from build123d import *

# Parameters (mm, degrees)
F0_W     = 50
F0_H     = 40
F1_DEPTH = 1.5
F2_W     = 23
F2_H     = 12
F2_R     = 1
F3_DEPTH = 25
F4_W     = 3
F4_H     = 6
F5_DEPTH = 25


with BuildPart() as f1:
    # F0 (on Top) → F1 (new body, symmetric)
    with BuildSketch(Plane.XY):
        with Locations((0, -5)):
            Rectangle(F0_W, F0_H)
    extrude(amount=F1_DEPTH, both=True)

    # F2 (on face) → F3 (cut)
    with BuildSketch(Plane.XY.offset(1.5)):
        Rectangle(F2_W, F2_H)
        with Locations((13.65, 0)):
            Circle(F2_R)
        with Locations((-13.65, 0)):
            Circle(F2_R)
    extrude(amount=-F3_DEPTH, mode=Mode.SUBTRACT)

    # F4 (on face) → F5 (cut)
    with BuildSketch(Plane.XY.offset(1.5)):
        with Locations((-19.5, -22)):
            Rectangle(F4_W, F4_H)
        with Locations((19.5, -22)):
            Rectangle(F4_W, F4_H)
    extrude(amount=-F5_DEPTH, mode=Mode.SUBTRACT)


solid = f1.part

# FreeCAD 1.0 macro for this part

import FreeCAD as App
import Part
import Sketcher
Q = App.Units.Quantity


def add_polygon(sketch, points):
    """Adds a closed chain of lines whose ends are joined by coincident constraints."""
    first, n = sketch.GeometryCount, len(points)
    for a, b in zip(points, points[1:] + points[:1]):
        sketch.addGeometry(Part.LineSegment(App.Vector(*a, 0), App.Vector(*b, 0)), False)
    for i in range(n):
        sketch.addConstraint(Sketcher.Constraint("Coincident", first + i, 2, first + (i + 1) % n, 1))

doc = App.newDocument("Part")
params = doc.addObject("Spreadsheet::Sheet", "Params")
for row, (alias, value) in enumerate([
    ("sketch1_width", "50 mm"),
    ("sketch1_height", "40 mm"),
    ("pad1_length", "3 mm"),
    ("sketch2_diameter", "2 mm"),
    ("sketch2_width", "23 mm"),
    ("sketch2_height", "12 mm"),
    ("pocket1_length", "25 mm"),
    ("sketch3_width", "3 mm"),
    ("sketch3_height", "6 mm"),
    ("pocket2_length", "25 mm"),
], start=1):
    params.set(f"A{row}", alias)
    params.set(f"B{row}", "=" + value)
    params.setAlias(f"B{row}", alias)

body = doc.addObject("PartDesign::Body", "Body")

# Sketch on XY plane
sketch1 = body.newObject("Sketcher::SketchObject", "Sketch")
sketch1.AttachmentSupport = (doc.getObject("XY_Plane"), [""])
sketch1.MapMode = "FlatFace"
add_polygon(sketch1, [(-25, 15), (-25, -25), (25, -25), (25, 15)])  # lines 0-3
sketch1.addConstraint(Sketcher.Constraint("Vertical", 0))
sketch1.addConstraint(Sketcher.Constraint("Horizontal", 1))
sketch1.addConstraint(Sketcher.Constraint("Vertical", 2))
sketch1.addConstraint(Sketcher.Constraint("Horizontal", 3))
sketch1.addConstraint(Sketcher.Constraint("DistanceX", 1, 1, 1, 2, Q("50 mm")))
sketch1.addConstraint(Sketcher.Constraint("DistanceY", 0, 2, 0, 1, Q("40 mm")))
sketch1.addConstraint(Sketcher.Constraint("DistanceX", 0, 2, -1, 1, Q("25 mm")))
sketch1.addConstraint(Sketcher.Constraint("DistanceY", 0, 2, -1, 1, Q("25 mm")))
sketch1.setExpression("Constraints[8]", "Params.sketch1_width")
sketch1.setExpression("Constraints[9]", "Params.sketch1_height")
pad1 = body.newObject("PartDesign::Pad", "Pad")
pad1.Profile = sketch1
pad1.setExpression("Length", "Params.pad1_length")
pad1.Midplane = True

# Sketch on XY plane
sketch2 = body.newObject("Sketcher::SketchObject", "Sketch001")
sketch2.AttachmentSupport = (doc.getObject("XY_Plane"), [""])
sketch2.MapMode = "FlatFace"
sketch2.AttachmentOffset = App.Placement(App.Vector(0, 0, 1.5), App.Rotation())
add_polygon(sketch2, [(-11.5, 6), (-11.5, -6), (11.5, -6), (11.5, 6)])  # lines 0-3
sketch2.addGeometry(Part.Circle(App.Vector(13.7, 0, 0), App.Vector(0, 0, 1), 1), False)  # 4
sketch2.addGeometry(Part.Circle(App.Vector(-13.7, 0, 0), App.Vector(0, 0, 1), 1), False)  # 5
sketch2.addConstraint(Sketcher.Constraint("Vertical", 0))
sketch2.addConstraint(Sketcher.Constraint("Horizontal", 1))
sketch2.addConstraint(Sketcher.Constraint("Vertical", 2))
sketch2.addConstraint(Sketcher.Constraint("Horizontal", 3))
sketch2.addConstraint(Sketcher.Constraint("Equal", 4, 5))
sketch2.addConstraint(Sketcher.Constraint("Symmetric", 4, 3, 5, 3, -1, 1))
sketch2.addConstraint(Sketcher.Constraint("Symmetric", 0, 2, 2, 2, -1, 1))
sketch2.addConstraint(Sketcher.Constraint("PointOnObject", 4, 3, -1))
sketch2.addConstraint(Sketcher.Constraint("Diameter", 4, Q("2 mm")))
sketch2.addConstraint(Sketcher.Constraint("DistanceX", 1, 1, 1, 2, Q("23 mm")))
sketch2.addConstraint(Sketcher.Constraint("DistanceY", 0, 2, 0, 1, Q("12 mm")))
sketch2.addConstraint(Sketcher.Constraint("DistanceX", 5, 3, 4, 3, Q("27.3 mm")))
sketch2.setExpression("Constraints[12]", "Params.sketch2_diameter")
sketch2.setExpression("Constraints[13]", "Params.sketch2_width")
sketch2.setExpression("Constraints[14]", "Params.sketch2_height")
pocket1 = body.newObject("PartDesign::Pocket", "Pocket")
pocket1.Profile = sketch2
pocket1.setExpression("Length", "Params.pocket1_length")

# Sketch on XY plane
sketch3 = body.newObject("Sketcher::SketchObject", "Sketch002")
sketch3.AttachmentSupport = (doc.getObject("XY_Plane"), [""])
sketch3.MapMode = "FlatFace"
sketch3.AttachmentOffset = App.Placement(App.Vector(0, 0, 1.5), App.Rotation())
add_polygon(sketch3, [(-21, -19), (-21, -25), (-18, -25), (-18, -19)])  # lines 0-3
add_polygon(sketch3, [(18, -19), (18, -25), (21, -25), (21, -19)])  # lines 4-7
sketch3.addConstraint(Sketcher.Constraint("Vertical", 0))
sketch3.addConstraint(Sketcher.Constraint("Horizontal", 1))
sketch3.addConstraint(Sketcher.Constraint("Vertical", 2))
sketch3.addConstraint(Sketcher.Constraint("Horizontal", 3))
sketch3.addConstraint(Sketcher.Constraint("Vertical", 4))
sketch3.addConstraint(Sketcher.Constraint("Horizontal", 5))
sketch3.addConstraint(Sketcher.Constraint("Vertical", 6))
sketch3.addConstraint(Sketcher.Constraint("Horizontal", 7))
sketch3.addConstraint(Sketcher.Constraint("Symmetric", 1, 2, 4, 2, -2))
sketch3.addConstraint(Sketcher.Constraint("Symmetric", 3, 2, 6, 2, -2))
sketch3.addConstraint(Sketcher.Constraint("DistanceX", 1, 1, 1, 2, Q("3 mm")))
sketch3.addConstraint(Sketcher.Constraint("DistanceY", 0, 2, 0, 1, Q("6 mm")))
sketch3.addConstraint(Sketcher.Constraint("DistanceX", 0, 2, -1, 1, Q("21 mm")))
sketch3.addConstraint(Sketcher.Constraint("DistanceY", 0, 2, -1, 1, Q("25 mm")))
sketch3.setExpression("Constraints[18]", "Params.sketch3_width")
sketch3.setExpression("Constraints[19]", "Params.sketch3_height")
pocket2 = body.newObject("PartDesign::Pocket", "Pocket001")
pocket2.Profile = sketch3
pocket2.setExpression("Length", "Params.pocket2_length")

doc.recompute()
